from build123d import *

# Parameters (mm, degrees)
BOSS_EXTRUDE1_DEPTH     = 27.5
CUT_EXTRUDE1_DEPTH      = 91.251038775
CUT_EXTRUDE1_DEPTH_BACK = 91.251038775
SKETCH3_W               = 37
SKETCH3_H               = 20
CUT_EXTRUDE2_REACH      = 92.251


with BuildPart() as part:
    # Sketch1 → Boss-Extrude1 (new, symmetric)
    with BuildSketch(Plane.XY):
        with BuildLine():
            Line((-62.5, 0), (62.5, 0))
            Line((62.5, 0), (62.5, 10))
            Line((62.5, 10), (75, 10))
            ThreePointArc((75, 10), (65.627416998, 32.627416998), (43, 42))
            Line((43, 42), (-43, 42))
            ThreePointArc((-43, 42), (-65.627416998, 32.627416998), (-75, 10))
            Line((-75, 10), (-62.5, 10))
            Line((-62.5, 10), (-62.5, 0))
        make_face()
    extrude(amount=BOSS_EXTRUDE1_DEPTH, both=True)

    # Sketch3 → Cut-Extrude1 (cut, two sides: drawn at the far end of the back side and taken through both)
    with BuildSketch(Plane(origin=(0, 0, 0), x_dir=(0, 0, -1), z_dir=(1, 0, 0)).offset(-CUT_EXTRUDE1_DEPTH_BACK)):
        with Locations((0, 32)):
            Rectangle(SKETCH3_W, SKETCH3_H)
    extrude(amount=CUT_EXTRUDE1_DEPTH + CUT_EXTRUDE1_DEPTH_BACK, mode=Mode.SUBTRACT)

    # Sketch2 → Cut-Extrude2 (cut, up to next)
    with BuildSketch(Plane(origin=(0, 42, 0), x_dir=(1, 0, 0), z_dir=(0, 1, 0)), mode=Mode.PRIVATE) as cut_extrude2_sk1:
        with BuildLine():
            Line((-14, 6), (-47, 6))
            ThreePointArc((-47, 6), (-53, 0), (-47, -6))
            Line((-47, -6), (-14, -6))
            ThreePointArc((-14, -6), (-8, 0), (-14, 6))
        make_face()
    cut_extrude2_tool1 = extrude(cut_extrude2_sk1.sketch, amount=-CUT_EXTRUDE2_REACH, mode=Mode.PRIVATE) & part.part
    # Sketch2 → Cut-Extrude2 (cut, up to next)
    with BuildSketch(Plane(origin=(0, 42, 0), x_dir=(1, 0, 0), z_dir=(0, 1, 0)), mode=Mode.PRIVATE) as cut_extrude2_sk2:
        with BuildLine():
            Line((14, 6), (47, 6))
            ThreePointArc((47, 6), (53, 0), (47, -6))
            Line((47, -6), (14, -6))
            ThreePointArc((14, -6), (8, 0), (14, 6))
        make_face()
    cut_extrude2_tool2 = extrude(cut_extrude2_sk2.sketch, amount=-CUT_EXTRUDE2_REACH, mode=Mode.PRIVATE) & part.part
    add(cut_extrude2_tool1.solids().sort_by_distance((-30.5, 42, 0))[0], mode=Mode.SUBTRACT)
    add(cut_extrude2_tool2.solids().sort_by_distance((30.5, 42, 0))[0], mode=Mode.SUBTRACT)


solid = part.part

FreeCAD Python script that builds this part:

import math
import FreeCAD as App
import Part
import Sketcher
from FreeCAD import Vector
Q = App.Units.Quantity


def add_polygon(sketch, points):
    """Adds a closed chain of lines whose ends are joined by coincident constraints."""
    first, n = sketch.GeometryCount, len(points)
    for a, b in zip(points, points[1:] + points[:1]):
        sketch.addGeometry(Part.LineSegment(App.Vector(*a, 0), App.Vector(*b, 0)), False)
    for i in range(n):
        sketch.addConstraint(Sketcher.Constraint("Coincident", first + i, 2, first + (i + 1) % n, 1))

doc = App.newDocument("Part")
body = doc.addObject("PartDesign::Body", "Body")

# Sketch on XY plane
sketch1 = doc.addObject("Sketcher::SketchObject", "Sketch")
body.addObject(sketch1)
sketch1.AttachmentSupport = (doc.XY_Plane, [""])
sketch1.MapMode = "FlatFace"
sketch1.addGeometry([
    Part.LineSegment(Vector(-62.5, 0, 0), Vector(62.5, 0, 0)),  # 0
    Part.LineSegment(Vector(62.5, 0, 0), Vector(62.5, 10, 0)),  # 1
    Part.LineSegment(Vector(62.5, 10, 0), Vector(75, 10, 0)),  # 2
    Part.ArcOfCircle(Part.Circle(Vector(43, 10, 0), Vector(0, 0, 1), 32), math.radians(0), math.radians(90)),  # 3
    Part.LineSegment(Vector(43, 42, 0), Vector(-43, 42, 0)),  # 4
    Part.ArcOfCircle(Part.Circle(Vector(-43, 10, 0), Vector(0, 0, 1), 32), math.radians(90), math.radians(180)),  # 5
    Part.LineSegment(Vector(-75, 10, 0), Vector(-62.5, 10, 0)),  # 6
    Part.LineSegment(Vector(-62.5, 10, 0), Vector(-62.5, 0, 0)),  # 7
], False)
sketch1.addConstraint([
    Sketcher.Constraint("Coincident", 0, 2, 1, 1),
    Sketcher.Constraint("Coincident", 1, 2, 2, 1),
    Sketcher.Constraint("Coincident", 2, 2, 3, 1),
    Sketcher.Constraint("Tangent", 3, 2, 4, 1),
    Sketcher.Constraint("Tangent", 4, 2, 5, 1),
    Sketcher.Constraint("Coincident", 5, 2, 6, 1),
    Sketcher.Constraint("Coincident", 6, 2, 7, 1),
    Sketcher.Constraint("Coincident", 7, 2, 0, 1),
    Sketcher.Constraint("Horizontal", 0),
    Sketcher.Constraint("Vertical", 1),
    Sketcher.Constraint("Horizontal", 2),
    Sketcher.Constraint("Horizontal", 4),
    Sketcher.Constraint("Horizontal", 6),
    Sketcher.Constraint("Vertical", 7),
    Sketcher.Constraint("Equal", 3, 5),
    Sketcher.Constraint("Symmetric", 0, 2, 7, 2, -1, 1),
    Sketcher.Constraint("Symmetric", 2, 2, 5, 2, -2),
    Sketcher.Constraint("Horizontal", 5, 3, 1, 2),
    Sketcher.Constraint("Radius", 3, Q("32 mm")),
    Sketcher.Constraint("DistanceX", 0, 1, 0, 2, Q("125 mm")),
    Sketcher.Constraint("DistanceX", 4, 2, 4, 1, Q("86 mm")),
    Sketcher.Constraint("DistanceY", 1, 1, 1, 2, Q("10 mm")),
])
pad1 = doc.addObject("PartDesign::Pad", "Pad")
body.addObject(pad1)
pad1.Profile = sketch1
pad1.Length = 55
pad1.Midplane = True

# Sketch on YZ plane
sketch2 = doc.addObject("Sketcher::SketchObject", "Sketch001")
body.addObject(sketch2)
sketch2.AttachmentSupport = (doc.YZ_Plane, [""])
sketch2.MapMode = "FlatFace"
add_polygon(sketch2, [(42, 18.5), (22, 18.5), (22, -18.5), (42, -18.5)])  # lines 0-3
sketch2.addConstraint([
    Sketcher.Constraint("Horizontal", 0),
    Sketcher.Constraint("Vertical", 1),
    Sketcher.Constraint("Horizontal", 2),
    Sketcher.Constraint("Vertical", 3),
    Sketcher.Constraint("DistanceX", 0, 2, 0, 1, Q("20 mm")),
    Sketcher.Constraint("DistanceY", 1, 2, 1, 1, Q("37 mm")),
    Sketcher.Constraint("DistanceX", -1, 1, 0, 2, Q("22 mm")),
    Sketcher.Constraint("DistanceY", -1, 1, 0, 2, Q("18.5 mm")),
])
pocket1 = doc.addObject("PartDesign::Pocket", "Pocket")
body.addObject(pocket1)
pocket1.Profile = sketch2
pocket1.Type = "ThroughAll"
pocket1.Midplane = True

# Sketch on XZ plane
sketch3 = doc.addObject("Sketcher::SketchObject", "Sketch002")
body.addObject(sketch3)
sketch3.AttachmentSupport = (doc.XZ_Plane, [""])
sketch3.MapMode = "FlatFace"
sketch3.AttachmentOffset = App.Placement(Vector(0, 0, -42), App.Rotation())
sketch3.addGeometry([
    Part.LineSegment(Vector(-14, -6, 0), Vector(-47, -6, 0)),
    Part.ArcOfCircle(Part.Circle(Vector(-47, 0, 0), Vector(0, 0, 1), 6), math.radians(90), math.radians(270)),
    Part.LineSegment(Vector(-47, 6, 0), Vector(-14, 6, 0)),
    Part.ArcOfCircle(Part.Circle(Vector(-14, 0, 0), Vector(0, 0, 1), 6), math.radians(-90), math.radians(90)),
], False)
sketch3.addConstraint([
    Sketcher.Constraint("Tangent", 0, 2, 1, 2),
    Sketcher.Constraint("Tangent", 1, 1, 2, 1),
    Sketcher.Constraint("Tangent", 2, 2, 3, 2),
    Sketcher.Constraint("Tangent", 3, 1, 0, 1),
    Sketcher.Constraint("Horizontal", 0),
    Sketcher.Constraint("Horizontal", 2),
    Sketcher.Constraint("PointOnObject", 1, 3, -1),
    Sketcher.Constraint("Radius", 1, Q("6 mm")),
    Sketcher.Constraint("DistanceX", 0, 2, 0, 1, Q("33 mm")),
    Sketcher.Constraint("DistanceX", 1, 3, -1, 1, Q("47 mm")),
])
pocket2 = doc.addObject("PartDesign::Pocket", "Pocket001")
body.addObject(pocket2)
pocket2.Profile = sketch3
pocket2.Length = 42
pocket2.Reversed = True

# Sketch on XZ plane
sketch4 = doc.addObject("Sketcher::SketchObject", "Sketch003")
body.addObject(sketch4)
sketch4.AttachmentSupport = (doc.XZ_Plane, [""])
sketch4.MapMode = "FlatFace"
sketch4.AttachmentOffset = App.Placement(Vector(0, 0, -42), App.Rotation())
sketch4.addGeometry([
    Part.LineSegment(Vector(47, -6, 0), Vector(14, -6, 0)),
    Part.ArcOfCircle(Part.Circle(Vector(14, 0, 0), Vector(0, 0, 1), 6), math.radians(90), math.radians(270)),
    Part.LineSegment(Vector(14, 6, 0), Vector(47, 6, 0)),
    Part.ArcOfCircle(Part.Circle(Vector(47, 0, 0), Vector(0, 0, 1), 6), math.radians(-90), math.radians(90)),
], False)
sketch4.addConstraint([
    Sketcher.Constraint("Tangent", 0, 2, 1, 2),
    Sketcher.Constraint("Tangent", 1, 1, 2, 1),
    Sketcher.Constraint("Tangent", 2, 2, 3, 2),
    Sketcher.Constraint("Tangent", 3, 1, 0, 1),
    Sketcher.Constraint("Horizontal", 0),
    Sketcher.Constraint("Horizontal", 2),
    Sketcher.Constraint("PointOnObject", 1, 3, -1),
    Sketcher.Constraint("Radius", 1, Q("6 mm")),
    Sketcher.Constraint("DistanceX", 0, 2, 0, 1, Q("33 mm")),
    Sketcher.Constraint("DistanceX", -1, 1, 1, 3, Q("14 mm")),
])
pocket3 = doc.addObject("PartDesign::Pocket", "Pocket002")
body.addObject(pocket3)
pocket3.Profile = sketch4
pocket3.Length = 42
pocket3.Reversed = True

doc.recompute()
